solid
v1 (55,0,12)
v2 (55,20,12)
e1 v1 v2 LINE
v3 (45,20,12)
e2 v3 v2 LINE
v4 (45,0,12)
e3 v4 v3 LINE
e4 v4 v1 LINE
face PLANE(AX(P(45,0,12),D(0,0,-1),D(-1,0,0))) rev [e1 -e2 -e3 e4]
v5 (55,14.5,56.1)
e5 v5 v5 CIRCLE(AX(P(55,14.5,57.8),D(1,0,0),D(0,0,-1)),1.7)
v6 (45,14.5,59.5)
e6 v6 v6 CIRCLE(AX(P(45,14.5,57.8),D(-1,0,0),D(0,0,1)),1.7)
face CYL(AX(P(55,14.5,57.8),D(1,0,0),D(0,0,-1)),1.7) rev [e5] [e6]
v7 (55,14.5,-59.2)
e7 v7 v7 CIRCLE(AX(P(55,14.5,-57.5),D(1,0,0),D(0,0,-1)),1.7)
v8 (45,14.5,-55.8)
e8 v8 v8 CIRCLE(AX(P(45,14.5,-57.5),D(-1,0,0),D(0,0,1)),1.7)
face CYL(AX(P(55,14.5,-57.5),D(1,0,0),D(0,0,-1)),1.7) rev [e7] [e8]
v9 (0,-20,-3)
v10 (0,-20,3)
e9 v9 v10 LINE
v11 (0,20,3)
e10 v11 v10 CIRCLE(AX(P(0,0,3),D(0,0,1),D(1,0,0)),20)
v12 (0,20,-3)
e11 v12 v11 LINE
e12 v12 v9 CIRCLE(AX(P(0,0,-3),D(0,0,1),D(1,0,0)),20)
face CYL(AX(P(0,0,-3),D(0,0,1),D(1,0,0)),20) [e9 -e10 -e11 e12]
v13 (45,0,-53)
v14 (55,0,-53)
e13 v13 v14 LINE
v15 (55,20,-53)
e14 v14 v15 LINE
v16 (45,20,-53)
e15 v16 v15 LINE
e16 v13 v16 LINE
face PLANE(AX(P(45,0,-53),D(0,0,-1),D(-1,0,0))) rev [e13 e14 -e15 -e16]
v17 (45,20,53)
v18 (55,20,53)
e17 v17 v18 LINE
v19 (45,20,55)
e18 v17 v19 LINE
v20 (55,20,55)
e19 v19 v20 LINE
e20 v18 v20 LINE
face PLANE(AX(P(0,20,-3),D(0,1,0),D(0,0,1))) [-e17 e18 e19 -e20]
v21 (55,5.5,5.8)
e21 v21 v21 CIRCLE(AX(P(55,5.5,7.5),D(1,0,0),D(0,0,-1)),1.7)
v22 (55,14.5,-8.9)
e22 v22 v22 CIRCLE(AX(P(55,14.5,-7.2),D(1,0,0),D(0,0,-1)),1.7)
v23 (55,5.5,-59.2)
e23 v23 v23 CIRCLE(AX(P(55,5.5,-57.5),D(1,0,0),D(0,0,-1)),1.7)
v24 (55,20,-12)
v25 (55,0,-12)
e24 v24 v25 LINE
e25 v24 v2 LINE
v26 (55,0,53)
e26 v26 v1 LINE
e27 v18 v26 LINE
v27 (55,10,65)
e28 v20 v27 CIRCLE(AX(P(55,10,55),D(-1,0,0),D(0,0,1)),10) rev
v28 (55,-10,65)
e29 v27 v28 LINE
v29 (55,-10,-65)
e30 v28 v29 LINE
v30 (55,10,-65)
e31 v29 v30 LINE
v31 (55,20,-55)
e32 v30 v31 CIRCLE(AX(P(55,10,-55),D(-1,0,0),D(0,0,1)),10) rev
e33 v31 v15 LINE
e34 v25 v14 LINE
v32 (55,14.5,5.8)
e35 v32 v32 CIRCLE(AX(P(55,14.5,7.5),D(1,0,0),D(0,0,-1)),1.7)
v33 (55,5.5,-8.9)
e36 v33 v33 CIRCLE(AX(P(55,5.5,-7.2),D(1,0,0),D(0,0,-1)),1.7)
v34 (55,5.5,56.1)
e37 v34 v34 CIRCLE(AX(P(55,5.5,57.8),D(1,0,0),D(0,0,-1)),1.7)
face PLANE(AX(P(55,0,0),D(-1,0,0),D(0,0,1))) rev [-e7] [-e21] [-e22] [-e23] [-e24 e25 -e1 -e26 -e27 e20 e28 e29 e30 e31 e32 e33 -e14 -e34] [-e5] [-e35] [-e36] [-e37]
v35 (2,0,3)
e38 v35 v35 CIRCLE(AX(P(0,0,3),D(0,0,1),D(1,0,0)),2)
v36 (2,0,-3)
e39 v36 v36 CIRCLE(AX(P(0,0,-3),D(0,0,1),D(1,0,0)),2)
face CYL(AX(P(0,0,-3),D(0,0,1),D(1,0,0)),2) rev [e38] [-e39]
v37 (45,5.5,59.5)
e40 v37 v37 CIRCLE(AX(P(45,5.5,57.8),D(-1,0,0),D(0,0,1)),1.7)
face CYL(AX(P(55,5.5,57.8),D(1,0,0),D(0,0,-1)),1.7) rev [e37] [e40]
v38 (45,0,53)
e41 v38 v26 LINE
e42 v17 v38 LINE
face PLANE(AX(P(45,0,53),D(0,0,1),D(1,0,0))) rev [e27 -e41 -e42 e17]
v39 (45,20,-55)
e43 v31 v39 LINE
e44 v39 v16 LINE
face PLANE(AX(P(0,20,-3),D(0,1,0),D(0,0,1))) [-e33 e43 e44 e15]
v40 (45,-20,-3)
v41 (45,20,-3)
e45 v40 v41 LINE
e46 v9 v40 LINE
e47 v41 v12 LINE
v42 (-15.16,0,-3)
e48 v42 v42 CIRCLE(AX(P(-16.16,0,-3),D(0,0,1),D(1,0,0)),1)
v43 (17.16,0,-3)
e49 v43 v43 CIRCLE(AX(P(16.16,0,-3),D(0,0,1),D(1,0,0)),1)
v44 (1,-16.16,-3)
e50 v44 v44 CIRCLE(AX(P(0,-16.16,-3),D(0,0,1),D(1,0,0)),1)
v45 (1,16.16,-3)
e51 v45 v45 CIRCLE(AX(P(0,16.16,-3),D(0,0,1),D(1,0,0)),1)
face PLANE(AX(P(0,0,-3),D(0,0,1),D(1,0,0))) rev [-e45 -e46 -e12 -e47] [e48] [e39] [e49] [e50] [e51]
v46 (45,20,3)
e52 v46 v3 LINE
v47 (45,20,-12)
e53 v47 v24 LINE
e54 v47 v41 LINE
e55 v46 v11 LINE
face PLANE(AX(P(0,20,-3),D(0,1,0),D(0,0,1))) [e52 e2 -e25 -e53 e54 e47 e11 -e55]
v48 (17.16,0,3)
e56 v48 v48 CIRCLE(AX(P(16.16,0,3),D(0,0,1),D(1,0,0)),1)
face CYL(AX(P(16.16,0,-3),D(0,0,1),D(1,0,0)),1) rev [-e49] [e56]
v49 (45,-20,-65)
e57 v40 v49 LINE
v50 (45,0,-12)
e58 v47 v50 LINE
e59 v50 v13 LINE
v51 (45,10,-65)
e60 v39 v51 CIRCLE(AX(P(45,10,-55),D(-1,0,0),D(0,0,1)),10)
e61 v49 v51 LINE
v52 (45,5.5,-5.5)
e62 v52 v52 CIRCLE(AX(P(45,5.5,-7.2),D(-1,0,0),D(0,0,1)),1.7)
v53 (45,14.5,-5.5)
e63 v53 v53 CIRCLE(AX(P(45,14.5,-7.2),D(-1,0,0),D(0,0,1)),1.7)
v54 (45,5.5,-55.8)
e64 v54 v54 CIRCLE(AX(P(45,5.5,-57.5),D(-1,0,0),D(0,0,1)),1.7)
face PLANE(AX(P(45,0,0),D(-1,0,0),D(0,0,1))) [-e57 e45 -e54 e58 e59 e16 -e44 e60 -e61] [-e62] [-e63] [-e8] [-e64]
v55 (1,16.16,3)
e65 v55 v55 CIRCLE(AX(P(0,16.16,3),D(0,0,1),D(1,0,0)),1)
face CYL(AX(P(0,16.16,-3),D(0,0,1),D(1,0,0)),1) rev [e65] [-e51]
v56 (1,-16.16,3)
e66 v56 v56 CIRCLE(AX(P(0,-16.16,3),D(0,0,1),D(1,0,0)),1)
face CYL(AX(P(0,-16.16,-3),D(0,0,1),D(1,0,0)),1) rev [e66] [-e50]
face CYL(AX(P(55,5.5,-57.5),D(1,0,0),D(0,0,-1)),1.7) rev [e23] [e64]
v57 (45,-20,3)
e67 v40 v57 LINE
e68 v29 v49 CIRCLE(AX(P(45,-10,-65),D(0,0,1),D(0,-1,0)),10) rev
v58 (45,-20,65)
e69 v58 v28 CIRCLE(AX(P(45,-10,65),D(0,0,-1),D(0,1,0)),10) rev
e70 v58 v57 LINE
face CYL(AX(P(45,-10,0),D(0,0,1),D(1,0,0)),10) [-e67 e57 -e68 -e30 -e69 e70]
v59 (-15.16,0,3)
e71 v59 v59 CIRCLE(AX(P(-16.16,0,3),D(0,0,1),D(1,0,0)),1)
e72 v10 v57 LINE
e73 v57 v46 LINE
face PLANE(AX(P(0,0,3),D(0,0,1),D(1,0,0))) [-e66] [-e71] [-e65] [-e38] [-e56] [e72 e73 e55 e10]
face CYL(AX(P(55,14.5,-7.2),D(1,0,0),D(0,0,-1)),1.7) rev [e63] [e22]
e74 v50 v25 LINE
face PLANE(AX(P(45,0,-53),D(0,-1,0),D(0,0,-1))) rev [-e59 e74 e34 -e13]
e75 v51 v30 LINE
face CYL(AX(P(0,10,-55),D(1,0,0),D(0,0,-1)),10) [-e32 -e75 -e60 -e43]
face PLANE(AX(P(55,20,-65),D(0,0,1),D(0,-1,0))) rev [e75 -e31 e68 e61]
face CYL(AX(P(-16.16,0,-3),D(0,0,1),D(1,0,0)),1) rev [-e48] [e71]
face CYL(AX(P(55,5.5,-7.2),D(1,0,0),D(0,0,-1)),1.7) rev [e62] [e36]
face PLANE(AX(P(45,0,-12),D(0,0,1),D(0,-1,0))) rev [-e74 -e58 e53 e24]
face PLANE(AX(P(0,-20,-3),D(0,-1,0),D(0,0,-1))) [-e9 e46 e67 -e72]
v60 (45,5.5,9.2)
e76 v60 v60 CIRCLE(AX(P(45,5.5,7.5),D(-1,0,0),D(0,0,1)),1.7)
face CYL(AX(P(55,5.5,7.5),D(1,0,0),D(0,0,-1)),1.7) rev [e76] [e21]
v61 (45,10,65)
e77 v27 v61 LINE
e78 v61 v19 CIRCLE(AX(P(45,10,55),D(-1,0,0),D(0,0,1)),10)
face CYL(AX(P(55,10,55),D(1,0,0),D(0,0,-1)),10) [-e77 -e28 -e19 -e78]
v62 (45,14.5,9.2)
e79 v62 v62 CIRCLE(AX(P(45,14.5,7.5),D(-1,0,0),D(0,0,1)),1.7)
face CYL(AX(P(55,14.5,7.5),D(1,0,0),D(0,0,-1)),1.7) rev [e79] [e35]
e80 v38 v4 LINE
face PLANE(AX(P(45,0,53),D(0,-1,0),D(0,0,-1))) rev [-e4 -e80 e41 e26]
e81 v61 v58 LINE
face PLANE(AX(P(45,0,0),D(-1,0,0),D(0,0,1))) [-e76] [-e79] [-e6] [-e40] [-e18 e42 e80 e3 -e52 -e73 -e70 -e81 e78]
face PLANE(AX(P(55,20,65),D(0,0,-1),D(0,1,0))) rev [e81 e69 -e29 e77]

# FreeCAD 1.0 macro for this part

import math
import FreeCAD as App
import Part
import Sketcher

V = App.Vector
Q = App.Units.Quantity


def edges_at(feature, points):
    """Names of the edges that pass closest to the given points."""
    edges = feature.Shape.Edges
    near = lambda p: min(range(len(edges)), key=lambda i: edges[i].distToShape(Part.Vertex(*p))[0])
    return sorted({f"Edge{near(p) + 1}" for p in points})


def add_polygon(sketch, points):
    """Adds a closed chain of lines whose ends are joined by coincident constraints."""
    first, n = sketch.GeometryCount, len(points)
    for a, b in zip(points, points[1:] + points[:1]):
        sketch.addGeometry(Part.LineSegment(App.Vector(*a, 0), App.Vector(*b, 0)), False)
    for i in range(n):
        sketch.addConstraint(Sketcher.Constraint("Coincident", first + i, 2, first + (i + 1) % n, 1))

doc = App.newDocument("Part")
body = doc.addObject("PartDesign::Body", "Body")

# Sketch on XY plane
sketch1 = doc.addObject("Sketcher::SketchObject", "Sketch")
body.addObject(sketch1)
sketch1.AttachmentSupport = (doc.XY_Plane, [""])
sketch1.MapMode = "FlatFace"
sketch1.addGeometry([
    Part.LineSegment(V(45, 20, 0), V(0, 20, 0)),  # 0
    Part.ArcOfCircle(Part.Circle(V(0, 0, 0), V(0, 0, 1), 20), math.radians(90), math.radians(270)),  # 1
    Part.LineSegment(V(0, -20, 0), V(45, -20, 0)),  # 2
    Part.LineSegment(V(45, -20, 0), V(45, 20, 0)),  # 3
    Part.Circle(V(0, -16.16, 0), V(0, 0, 1), 1),  # 4
    Part.Circle(V(16.16, 0, 0), V(0, 0, 1), 1),  # 5
    Part.Circle(V(0, 0, 0), V(0, 0, 1), 2),  # 6
    Part.Circle(V(-16.16, 0, 0), V(0, 0, 1), 1),  # 7
    Part.Circle(V(0, 16.16, 0), V(0, 0, 1), 1),  # 8
], False)
sketch1.addConstraint([
    Sketcher.Constraint("Tangent", 0, 2, 1, 1),
    Sketcher.Constraint("Tangent", 1, 2, 2, 1),
    Sketcher.Constraint("Coincident", 2, 2, 3, 1),
    Sketcher.Constraint("Coincident", 3, 2, 0, 1),
    Sketcher.Constraint("Horizontal", 0),
    Sketcher.Constraint("Horizontal", 2),
    Sketcher.Constraint("Vertical", 3),
    Sketcher.Constraint("Coincident", 1, 3, -1, 1),
    Sketcher.Constraint("Coincident", 6, 3, -1, 1),
    Sketcher.Constraint("Equal", 4, 5),
    Sketcher.Constraint("Equal", 5, 7),
    Sketcher.Constraint("Equal", 7, 8),
    Sketcher.Constraint("Symmetric", 5, 3, 7, 3, -1, 1),
    Sketcher.Constraint("Symmetric", 4, 3, 8, 3, -1, 1),
    Sketcher.Constraint("PointOnObject", 4, 3, -2),
    Sketcher.Constraint("PointOnObject", 5, 3, -1),
    Sketcher.Constraint("Diameter", 4, Q("2 mm")),
    Sketcher.Constraint("Diameter", 6, Q("4 mm")),
    Sketcher.Constraint("Radius", 1, Q("20 mm")),
    Sketcher.Constraint("DistanceX", 0, 2, 0, 1, Q("45 mm")),
    Sketcher.Constraint("DistanceY", 4, 3, -1, 1, Q("16.16 mm")),
    Sketcher.Constraint("DistanceX", -1, 1, 5, 3, Q("16.16 mm")),
])
pad1 = doc.addObject("PartDesign::Pad", "Pad")
body.addObject(pad1)
pad1.Profile = sketch1
pad1.Type = "TwoLengths"
pad1.Length = 3
pad1.Length2 = 3

# Sketch on YZ plane
sketch2 = doc.addObject("Sketcher::SketchObject", "Sketch001")
body.addObject(sketch2)
sketch2.AttachmentSupport = (doc.YZ_Plane, [""])
sketch2.MapMode = "FlatFace"
sketch2.AttachmentOffset = App.Placement(V(0, 0, 45), App.Rotation())
add_polygon(sketch2, [(20, 65), (-20, 65), (-20, -65), (20, -65)])  # lines 0-3
sketch2.addConstraint([
    Sketcher.Constraint("Horizontal", 0),
    Sketcher.Constraint("Vertical", 1),
    Sketcher.Constraint("Horizontal", 2),
    Sketcher.Constraint("Vertical", 3),
    Sketcher.Constraint("Symmetric", 0, 2, 2, 2, -1, 1),
    Sketcher.Constraint("DistanceX", 0, 2, 0, 1, Q("40 mm")),
    Sketcher.Constraint("DistanceY", 1, 2, 1, 1, Q("130 mm")),
])
pad2 = doc.addObject("PartDesign::Pad", "Pad001")
body.addObject(pad2)
pad2.Profile = sketch2
pad2.Length = 10

# Sketch on YZ plane
sketch3 = doc.addObject("Sketcher::SketchObject", "Sketch002")
body.addObject(sketch3)
sketch3.AttachmentSupport = (doc.YZ_Plane, [""])
sketch3.MapMode = "FlatFace"
sketch3.AttachmentOffset = App.Placement(V(0, 0, 55), App.Rotation())
add_polygon(sketch3, [(20, -12), (0, -12), (0, -53), (20, -53)])  # lines 0-3
add_polygon(sketch3, [(20, 53), (0, 53), (0, 12), (20, 12)])  # lines 4-7
sketch3.addConstraint([
    Sketcher.Constraint("Horizontal", 0),
    Sketcher.Constraint("Vertical", 1),
    Sketcher.Constraint("Horizontal", 2),
    Sketcher.Constraint("Vertical", 3),
    Sketcher.Constraint("Horizontal", 4),
    Sketcher.Constraint("Vertical", 5),
    Sketcher.Constraint("Horizontal", 6),
    Sketcher.Constraint("Vertical", 7),
    Sketcher.Constraint("Symmetric", 1, 2, 4, 2, -1, 1),
    Sketcher.Constraint("Symmetric", 0, 2, 5, 2, -1),
    Sketcher.Constraint("Vertical", 3, 2, 6, 2),
    Sketcher.Constraint("DistanceX", 0, 2, 0, 1, Q("20 mm")),
    Sketcher.Constraint("DistanceY", 1, 2, 1, 1, Q("41 mm")),
    Sketcher.Constraint("DistanceY", 0, 2, -1, 1, Q("12 mm")),
])
pocket1 = doc.addObject("PartDesign::Pocket", "Pocket")
body.addObject(pocket1)
pocket1.Profile = sketch3
pocket1.Length = 10
doc.recompute()

fillet = doc.addObject("PartDesign::Fillet", "Fillet")
body.addObject(fillet)
fillet.Base = (pocket1, edges_at(pocket1, [(55, -20, 0)]))
fillet.Radius = 10

# Sketch on YZ plane
sketch4 = doc.addObject("Sketcher::SketchObject", "Sketch003")
body.addObject(sketch4)
sketch4.AttachmentSupport = (doc.YZ_Plane, [""])
sketch4.MapMode = "FlatFace"
sketch4.AttachmentOffset = App.Placement(V(0, 0, 55), App.Rotation())
sketch4.addGeometry([
    Part.Circle(V(14.5, 57.8, 0), V(0, 0, 1), 1.7),  # 0
    Part.Circle(V(5.5, 57.8, 0), V(0, 0, 1), 1.7),  # 1
    Part.Circle(V(14.5, 7.5, 0), V(0, 0, 1), 1.7),  # 2
    Part.Circle(V(5.5, 7.5, 0), V(0, 0, 1), 1.7),  # 3
    Part.Circle(V(14.5, -7.2, 0), V(0, 0, 1), 1.7),  # 4
    Part.Circle(V(5.5, -7.2, 0), V(0, 0, 1), 1.7),  # 5
    Part.Circle(V(14.5, -57.5, 0), V(0, 0, 1), 1.7),  # 6
    Part.Circle(V(5.5, -57.5, 0), V(0, 0, 1), 1.7),  # 7
], False)
sketch4.addConstraint([
    Sketcher.Constraint("Equal", 0, 1),
    Sketcher.Constraint("Equal", 1, 2),
    Sketcher.Constraint("Equal", 2, 3),
    Sketcher.Constraint("Equal", 3, 4),
    Sketcher.Constraint("Equal", 4, 5),
    Sketcher.Constraint("Equal", 5, 6),
    Sketcher.Constraint("Equal", 6, 7),
    Sketcher.Constraint("Horizontal", 0, 3, 1, 3),
    Sketcher.Constraint("Horizontal", 2, 3, 3, 3),
    Sketcher.Constraint("Horizontal", 4, 3, 5, 3),
    Sketcher.Constraint("Horizontal", 6, 3, 7, 3),
    Sketcher.Constraint("Vertical", 0, 3, 2, 3),
    Sketcher.Constraint("Vertical", 1, 3, 3, 3),
    Sketcher.Constraint("Vertical", 2, 3, 4, 3),
    Sketcher.Constraint("Vertical", 3, 3, 5, 3),
    Sketcher.Constraint("Vertical", 4, 3, 6, 3),
    Sketcher.Constraint("Vertical", 5, 3, 7, 3),
    Sketcher.Constraint("Diameter", 0, Q("3.4 mm")),
    Sketcher.Constraint("DistanceX", 1, 3, 0, 3, Q("9 mm")),
    Sketcher.Constraint("DistanceY", 4, 3, 0, 3, Q("65 mm")),
    Sketcher.Constraint("DistanceY", 6, 3, 2, 3, Q("65 mm")),
    Sketcher.Constraint("DistanceX", -1, 1, 0, 3, Q("14.5 mm")),
    Sketcher.Constraint("DistanceY", -1, 1, 0, 3, Q("57.8 mm")),
    Sketcher.Constraint("DistanceY", -1, 1, 2, 3, Q("7.5 mm")),
])
doc.recompute()
hole = doc.addObject("PartDesign::Hole", "Hole")
body.addObject(hole)
hole.Profile = sketch4
hole.ThreadType = "None"
hole.Diameter = 3.4
hole.DepthType = "ThroughAll"
doc.recompute()

fillet2 = doc.addObject("PartDesign::Fillet", "Fillet001")
body.addObject(fillet2)
fillet2.Base = (hole, edges_at(hole, [(50, 20, -65), (50, 20, 65)]))
fillet2.Radius = 10

doc.recompute()
